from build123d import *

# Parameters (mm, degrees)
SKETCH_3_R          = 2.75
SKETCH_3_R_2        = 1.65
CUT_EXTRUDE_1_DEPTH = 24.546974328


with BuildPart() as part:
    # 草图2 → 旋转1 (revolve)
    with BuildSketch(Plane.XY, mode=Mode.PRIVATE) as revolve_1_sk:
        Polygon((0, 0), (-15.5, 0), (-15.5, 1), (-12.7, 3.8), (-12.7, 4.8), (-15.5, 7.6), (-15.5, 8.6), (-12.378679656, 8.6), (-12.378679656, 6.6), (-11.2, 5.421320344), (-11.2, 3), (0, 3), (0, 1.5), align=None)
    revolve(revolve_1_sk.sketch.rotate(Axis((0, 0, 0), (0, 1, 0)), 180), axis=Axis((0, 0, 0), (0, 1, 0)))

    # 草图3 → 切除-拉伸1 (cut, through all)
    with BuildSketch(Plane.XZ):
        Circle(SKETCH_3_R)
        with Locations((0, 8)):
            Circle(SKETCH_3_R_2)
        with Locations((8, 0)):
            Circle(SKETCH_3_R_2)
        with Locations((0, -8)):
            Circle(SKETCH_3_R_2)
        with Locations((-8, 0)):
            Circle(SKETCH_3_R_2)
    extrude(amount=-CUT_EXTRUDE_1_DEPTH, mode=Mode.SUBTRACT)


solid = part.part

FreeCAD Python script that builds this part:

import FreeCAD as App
import Part
import Sketcher

V = App.Vector

doc = App.newDocument("Part")
body = doc.addObject("PartDesign::Body", "Body")

sketch1 = doc.addObject("Sketcher::SketchObject", "Sketch")
body.addObject(sketch1)
sketch1.AttachmentSupport = (doc.XY_Plane, [""])
sketch1.MapMode = "FlatFace"
sketch1.addGeometry(Part.LineSegment(V(-15.5, 0, 0), V(0, 0, 0)), False)
sketch1.addGeometry(Part.LineSegment(V(0, 0, 0), V(0, 3, 0)), False)
sketch1.addGeometry(Part.LineSegment(V(0, 3, 0), V(-11.2, 3, 0)), False)
sketch1.addGeometry(Part.LineSegment(V(-11.2, 3, 0), V(-11.2, 5.4, 0)), False)
sketch1.addGeometry(Part.LineSegment(V(-11.2, 5.4, 0), V(-12.4, 6.6, 0)), False)
sketch1.addGeometry(Part.LineSegment(V(-12.4, 6.6, 0), V(-12.4, 8.6, 0)), False)
sketch1.addGeometry(Part.LineSegment(V(-12.4, 8.6, 0), V(-15.5, 8.6, 0)), False)
sketch1.addGeometry(Part.LineSegment(V(-15.5, 8.6, 0), V(-15.5, 7.6, 0)), False)
sketch1.addGeometry(Part.LineSegment(V(-15.5, 7.6, 0), V(-12.7, 4.8, 0)), False)
sketch1.addGeometry(Part.LineSegment(V(-12.7, 4.8, 0), V(-12.7, 3.8, 0)), False)
sketch1.addGeometry(Part.LineSegment(V(-12.7, 3.8, 0), V(-15.5, 1, 0)), False)
sketch1.addGeometry(Part.LineSegment(V(-15.5, 1, 0), V(-15.5, 0, 0)), False)
sketch1.addConstraint(Sketcher.Constraint("Coincident", 0, 2, 1, 1))
sketch1.addConstraint(Sketcher.Constraint("Coincident", 1, 2, 2, 1))
sketch1.addConstraint(Sketcher.Constraint("Coincident", 2, 2, 3, 1))
sketch1.addConstraint(Sketcher.Constraint("Coincident", 3, 2, 4, 1))
sketch1.addConstraint(Sketcher.Constraint("Coincident", 4, 2, 5, 1))
sketch1.addConstraint(Sketcher.Constraint("Coincident", 5, 2, 6, 1))
sketch1.addConstraint(Sketcher.Constraint("Coincident", 6, 2, 7, 1))
sketch1.addConstraint(Sketcher.Constraint("Coincident", 7, 2, 8, 1))
sketch1.addConstraint(Sketcher.Constraint("Coincident", 8, 2, 9, 1))
sketch1.addConstraint(Sketcher.Constraint("Coincident", 9, 2, 10, 1))
sketch1.addConstraint(Sketcher.Constraint("Coincident", 10, 2, 11, 1))
sketch1.addConstraint(Sketcher.Constraint("Coincident", 11, 2, 0, 1))
sketch1.addConstraint(Sketcher.Constraint("Horizontal", 0))
sketch1.addConstraint(Sketcher.Constraint("Vertical", 1))
sketch1.addConstraint(Sketcher.Constraint("Horizontal", 2))
sketch1.addConstraint(Sketcher.Constraint("Vertical", 3))
sketch1.addConstraint(Sketcher.Constraint("Vertical", 5))
sketch1.addConstraint(Sketcher.Constraint("Horizontal", 6))
sketch1.addConstraint(Sketcher.Constraint("Vertical", 7))
sketch1.addConstraint(Sketcher.Constraint("Vertical", 9))
sketch1.addConstraint(Sketcher.Constraint("Vertical", 11))
sketch1.addConstraint(Sketcher.Constraint("Coincident", 0, 2, -1, 1))
sketch1.addConstraint(Sketcher.Constraint("Parallel", 4, 8))
sketch1.addConstraint(Sketcher.Constraint("Perpendicular", 8, 10))
sketch1.addConstraint(Sketcher.Constraint("Vertical", 7, 2, 10, 2))
sketch1.addConstraint(Sketcher.Constraint("Equal", 7, 9))
sketch1.addConstraint(Sketcher.Constraint("Equal", 9, 11))
sketch1.addConstraint(Sketcher.Constraint("Equal", 8, 10))
sketch1.addConstraint(Sketcher.Constraint("DistanceY", 1, 1, 1, 2, 3.0))
sketch1.addConstraint(Sketcher.Constraint("DistanceY", 5, 1, 5, 2, 2.0))
sketch1.addConstraint(Sketcher.Constraint("DistanceY", 7, 2, 7, 1, 1.0))
sketch1.addConstraint(Sketcher.Constraint("DistanceX", 0, 1, 0, 2, 15.5))
sketch1.addConstraint(Sketcher.Constraint("DistanceX", 2, 2, 2, 1, 11.2))
sketch1.addConstraint(Sketcher.Constraint("DistanceY", -1, 1, 4, 2, 6.6))
sketch1.addConstraint(Sketcher.Constraint("DistanceX", 6, 2, 6, 1, 3.12132))
revolution = doc.addObject("PartDesign::Revolution", "Revolution")
body.addObject(revolution)
revolution.Profile = sketch1
revolution.ReferenceAxis = (sketch1, ["V_Axis"])
revolution.Angle = 360

sketch2 = doc.addObject("Sketcher::SketchObject", "Sketch001")
body.addObject(sketch2)
sketch2.AttachmentSupport = (doc.XZ_Plane, [""])
sketch2.MapMode = "FlatFace"
sketch2.addGeometry(Part.Circle(V(0, 0, 0), V(0, 0, 1), 2.8), False)
sketch2.addGeometry(Part.Circle(V(0, 8, 0), V(0, 0, 1), 1.6), False)
sketch2.addGeometry(Part.Circle(V(8, 0, 0), V(0, 0, 1), 1.6), False)
sketch2.addGeometry(Part.Circle(V(0, -8, 0), V(0, 0, 1), 1.6), False)
sketch2.addGeometry(Part.Circle(V(-8, 0, 0), V(0, 0, 1), 1.6), False)
sketch2.addConstraint(Sketcher.Constraint("Coincident", 0, 3, -1, 1))
sketch2.addConstraint(Sketcher.Constraint("Equal", 1, 2))
sketch2.addConstraint(Sketcher.Constraint("Equal", 2, 3))
sketch2.addConstraint(Sketcher.Constraint("Equal", 3, 4))
sketch2.addConstraint(Sketcher.Constraint("Symmetric", 1, 3, 3, 3, -1, 1))
sketch2.addConstraint(Sketcher.Constraint("Symmetric", 2, 3, 4, 3, -1, 1))
sketch2.addConstraint(Sketcher.Constraint("PointOnObject", 1, 3, -2))
sketch2.addConstraint(Sketcher.Constraint("PointOnObject", 2, 3, -1))
sketch2.addConstraint(Sketcher.Constraint("Diameter", 0, 5.5))
sketch2.addConstraint(Sketcher.Constraint("Diameter", 1, 3.3))
sketch2.addConstraint(Sketcher.Constraint("DistanceY", -1, 1, 1, 3, 8.0))
sketch2.addConstraint(Sketcher.Constraint("DistanceX", -1, 1, 2, 3, 8.0))
pocket1 = doc.addObject("PartDesign::Pocket", "Pocket")
body.addObject(pocket1)
pocket1.Profile = sketch2
pocket1.Type = "ThroughAll"

doc.recompute()
